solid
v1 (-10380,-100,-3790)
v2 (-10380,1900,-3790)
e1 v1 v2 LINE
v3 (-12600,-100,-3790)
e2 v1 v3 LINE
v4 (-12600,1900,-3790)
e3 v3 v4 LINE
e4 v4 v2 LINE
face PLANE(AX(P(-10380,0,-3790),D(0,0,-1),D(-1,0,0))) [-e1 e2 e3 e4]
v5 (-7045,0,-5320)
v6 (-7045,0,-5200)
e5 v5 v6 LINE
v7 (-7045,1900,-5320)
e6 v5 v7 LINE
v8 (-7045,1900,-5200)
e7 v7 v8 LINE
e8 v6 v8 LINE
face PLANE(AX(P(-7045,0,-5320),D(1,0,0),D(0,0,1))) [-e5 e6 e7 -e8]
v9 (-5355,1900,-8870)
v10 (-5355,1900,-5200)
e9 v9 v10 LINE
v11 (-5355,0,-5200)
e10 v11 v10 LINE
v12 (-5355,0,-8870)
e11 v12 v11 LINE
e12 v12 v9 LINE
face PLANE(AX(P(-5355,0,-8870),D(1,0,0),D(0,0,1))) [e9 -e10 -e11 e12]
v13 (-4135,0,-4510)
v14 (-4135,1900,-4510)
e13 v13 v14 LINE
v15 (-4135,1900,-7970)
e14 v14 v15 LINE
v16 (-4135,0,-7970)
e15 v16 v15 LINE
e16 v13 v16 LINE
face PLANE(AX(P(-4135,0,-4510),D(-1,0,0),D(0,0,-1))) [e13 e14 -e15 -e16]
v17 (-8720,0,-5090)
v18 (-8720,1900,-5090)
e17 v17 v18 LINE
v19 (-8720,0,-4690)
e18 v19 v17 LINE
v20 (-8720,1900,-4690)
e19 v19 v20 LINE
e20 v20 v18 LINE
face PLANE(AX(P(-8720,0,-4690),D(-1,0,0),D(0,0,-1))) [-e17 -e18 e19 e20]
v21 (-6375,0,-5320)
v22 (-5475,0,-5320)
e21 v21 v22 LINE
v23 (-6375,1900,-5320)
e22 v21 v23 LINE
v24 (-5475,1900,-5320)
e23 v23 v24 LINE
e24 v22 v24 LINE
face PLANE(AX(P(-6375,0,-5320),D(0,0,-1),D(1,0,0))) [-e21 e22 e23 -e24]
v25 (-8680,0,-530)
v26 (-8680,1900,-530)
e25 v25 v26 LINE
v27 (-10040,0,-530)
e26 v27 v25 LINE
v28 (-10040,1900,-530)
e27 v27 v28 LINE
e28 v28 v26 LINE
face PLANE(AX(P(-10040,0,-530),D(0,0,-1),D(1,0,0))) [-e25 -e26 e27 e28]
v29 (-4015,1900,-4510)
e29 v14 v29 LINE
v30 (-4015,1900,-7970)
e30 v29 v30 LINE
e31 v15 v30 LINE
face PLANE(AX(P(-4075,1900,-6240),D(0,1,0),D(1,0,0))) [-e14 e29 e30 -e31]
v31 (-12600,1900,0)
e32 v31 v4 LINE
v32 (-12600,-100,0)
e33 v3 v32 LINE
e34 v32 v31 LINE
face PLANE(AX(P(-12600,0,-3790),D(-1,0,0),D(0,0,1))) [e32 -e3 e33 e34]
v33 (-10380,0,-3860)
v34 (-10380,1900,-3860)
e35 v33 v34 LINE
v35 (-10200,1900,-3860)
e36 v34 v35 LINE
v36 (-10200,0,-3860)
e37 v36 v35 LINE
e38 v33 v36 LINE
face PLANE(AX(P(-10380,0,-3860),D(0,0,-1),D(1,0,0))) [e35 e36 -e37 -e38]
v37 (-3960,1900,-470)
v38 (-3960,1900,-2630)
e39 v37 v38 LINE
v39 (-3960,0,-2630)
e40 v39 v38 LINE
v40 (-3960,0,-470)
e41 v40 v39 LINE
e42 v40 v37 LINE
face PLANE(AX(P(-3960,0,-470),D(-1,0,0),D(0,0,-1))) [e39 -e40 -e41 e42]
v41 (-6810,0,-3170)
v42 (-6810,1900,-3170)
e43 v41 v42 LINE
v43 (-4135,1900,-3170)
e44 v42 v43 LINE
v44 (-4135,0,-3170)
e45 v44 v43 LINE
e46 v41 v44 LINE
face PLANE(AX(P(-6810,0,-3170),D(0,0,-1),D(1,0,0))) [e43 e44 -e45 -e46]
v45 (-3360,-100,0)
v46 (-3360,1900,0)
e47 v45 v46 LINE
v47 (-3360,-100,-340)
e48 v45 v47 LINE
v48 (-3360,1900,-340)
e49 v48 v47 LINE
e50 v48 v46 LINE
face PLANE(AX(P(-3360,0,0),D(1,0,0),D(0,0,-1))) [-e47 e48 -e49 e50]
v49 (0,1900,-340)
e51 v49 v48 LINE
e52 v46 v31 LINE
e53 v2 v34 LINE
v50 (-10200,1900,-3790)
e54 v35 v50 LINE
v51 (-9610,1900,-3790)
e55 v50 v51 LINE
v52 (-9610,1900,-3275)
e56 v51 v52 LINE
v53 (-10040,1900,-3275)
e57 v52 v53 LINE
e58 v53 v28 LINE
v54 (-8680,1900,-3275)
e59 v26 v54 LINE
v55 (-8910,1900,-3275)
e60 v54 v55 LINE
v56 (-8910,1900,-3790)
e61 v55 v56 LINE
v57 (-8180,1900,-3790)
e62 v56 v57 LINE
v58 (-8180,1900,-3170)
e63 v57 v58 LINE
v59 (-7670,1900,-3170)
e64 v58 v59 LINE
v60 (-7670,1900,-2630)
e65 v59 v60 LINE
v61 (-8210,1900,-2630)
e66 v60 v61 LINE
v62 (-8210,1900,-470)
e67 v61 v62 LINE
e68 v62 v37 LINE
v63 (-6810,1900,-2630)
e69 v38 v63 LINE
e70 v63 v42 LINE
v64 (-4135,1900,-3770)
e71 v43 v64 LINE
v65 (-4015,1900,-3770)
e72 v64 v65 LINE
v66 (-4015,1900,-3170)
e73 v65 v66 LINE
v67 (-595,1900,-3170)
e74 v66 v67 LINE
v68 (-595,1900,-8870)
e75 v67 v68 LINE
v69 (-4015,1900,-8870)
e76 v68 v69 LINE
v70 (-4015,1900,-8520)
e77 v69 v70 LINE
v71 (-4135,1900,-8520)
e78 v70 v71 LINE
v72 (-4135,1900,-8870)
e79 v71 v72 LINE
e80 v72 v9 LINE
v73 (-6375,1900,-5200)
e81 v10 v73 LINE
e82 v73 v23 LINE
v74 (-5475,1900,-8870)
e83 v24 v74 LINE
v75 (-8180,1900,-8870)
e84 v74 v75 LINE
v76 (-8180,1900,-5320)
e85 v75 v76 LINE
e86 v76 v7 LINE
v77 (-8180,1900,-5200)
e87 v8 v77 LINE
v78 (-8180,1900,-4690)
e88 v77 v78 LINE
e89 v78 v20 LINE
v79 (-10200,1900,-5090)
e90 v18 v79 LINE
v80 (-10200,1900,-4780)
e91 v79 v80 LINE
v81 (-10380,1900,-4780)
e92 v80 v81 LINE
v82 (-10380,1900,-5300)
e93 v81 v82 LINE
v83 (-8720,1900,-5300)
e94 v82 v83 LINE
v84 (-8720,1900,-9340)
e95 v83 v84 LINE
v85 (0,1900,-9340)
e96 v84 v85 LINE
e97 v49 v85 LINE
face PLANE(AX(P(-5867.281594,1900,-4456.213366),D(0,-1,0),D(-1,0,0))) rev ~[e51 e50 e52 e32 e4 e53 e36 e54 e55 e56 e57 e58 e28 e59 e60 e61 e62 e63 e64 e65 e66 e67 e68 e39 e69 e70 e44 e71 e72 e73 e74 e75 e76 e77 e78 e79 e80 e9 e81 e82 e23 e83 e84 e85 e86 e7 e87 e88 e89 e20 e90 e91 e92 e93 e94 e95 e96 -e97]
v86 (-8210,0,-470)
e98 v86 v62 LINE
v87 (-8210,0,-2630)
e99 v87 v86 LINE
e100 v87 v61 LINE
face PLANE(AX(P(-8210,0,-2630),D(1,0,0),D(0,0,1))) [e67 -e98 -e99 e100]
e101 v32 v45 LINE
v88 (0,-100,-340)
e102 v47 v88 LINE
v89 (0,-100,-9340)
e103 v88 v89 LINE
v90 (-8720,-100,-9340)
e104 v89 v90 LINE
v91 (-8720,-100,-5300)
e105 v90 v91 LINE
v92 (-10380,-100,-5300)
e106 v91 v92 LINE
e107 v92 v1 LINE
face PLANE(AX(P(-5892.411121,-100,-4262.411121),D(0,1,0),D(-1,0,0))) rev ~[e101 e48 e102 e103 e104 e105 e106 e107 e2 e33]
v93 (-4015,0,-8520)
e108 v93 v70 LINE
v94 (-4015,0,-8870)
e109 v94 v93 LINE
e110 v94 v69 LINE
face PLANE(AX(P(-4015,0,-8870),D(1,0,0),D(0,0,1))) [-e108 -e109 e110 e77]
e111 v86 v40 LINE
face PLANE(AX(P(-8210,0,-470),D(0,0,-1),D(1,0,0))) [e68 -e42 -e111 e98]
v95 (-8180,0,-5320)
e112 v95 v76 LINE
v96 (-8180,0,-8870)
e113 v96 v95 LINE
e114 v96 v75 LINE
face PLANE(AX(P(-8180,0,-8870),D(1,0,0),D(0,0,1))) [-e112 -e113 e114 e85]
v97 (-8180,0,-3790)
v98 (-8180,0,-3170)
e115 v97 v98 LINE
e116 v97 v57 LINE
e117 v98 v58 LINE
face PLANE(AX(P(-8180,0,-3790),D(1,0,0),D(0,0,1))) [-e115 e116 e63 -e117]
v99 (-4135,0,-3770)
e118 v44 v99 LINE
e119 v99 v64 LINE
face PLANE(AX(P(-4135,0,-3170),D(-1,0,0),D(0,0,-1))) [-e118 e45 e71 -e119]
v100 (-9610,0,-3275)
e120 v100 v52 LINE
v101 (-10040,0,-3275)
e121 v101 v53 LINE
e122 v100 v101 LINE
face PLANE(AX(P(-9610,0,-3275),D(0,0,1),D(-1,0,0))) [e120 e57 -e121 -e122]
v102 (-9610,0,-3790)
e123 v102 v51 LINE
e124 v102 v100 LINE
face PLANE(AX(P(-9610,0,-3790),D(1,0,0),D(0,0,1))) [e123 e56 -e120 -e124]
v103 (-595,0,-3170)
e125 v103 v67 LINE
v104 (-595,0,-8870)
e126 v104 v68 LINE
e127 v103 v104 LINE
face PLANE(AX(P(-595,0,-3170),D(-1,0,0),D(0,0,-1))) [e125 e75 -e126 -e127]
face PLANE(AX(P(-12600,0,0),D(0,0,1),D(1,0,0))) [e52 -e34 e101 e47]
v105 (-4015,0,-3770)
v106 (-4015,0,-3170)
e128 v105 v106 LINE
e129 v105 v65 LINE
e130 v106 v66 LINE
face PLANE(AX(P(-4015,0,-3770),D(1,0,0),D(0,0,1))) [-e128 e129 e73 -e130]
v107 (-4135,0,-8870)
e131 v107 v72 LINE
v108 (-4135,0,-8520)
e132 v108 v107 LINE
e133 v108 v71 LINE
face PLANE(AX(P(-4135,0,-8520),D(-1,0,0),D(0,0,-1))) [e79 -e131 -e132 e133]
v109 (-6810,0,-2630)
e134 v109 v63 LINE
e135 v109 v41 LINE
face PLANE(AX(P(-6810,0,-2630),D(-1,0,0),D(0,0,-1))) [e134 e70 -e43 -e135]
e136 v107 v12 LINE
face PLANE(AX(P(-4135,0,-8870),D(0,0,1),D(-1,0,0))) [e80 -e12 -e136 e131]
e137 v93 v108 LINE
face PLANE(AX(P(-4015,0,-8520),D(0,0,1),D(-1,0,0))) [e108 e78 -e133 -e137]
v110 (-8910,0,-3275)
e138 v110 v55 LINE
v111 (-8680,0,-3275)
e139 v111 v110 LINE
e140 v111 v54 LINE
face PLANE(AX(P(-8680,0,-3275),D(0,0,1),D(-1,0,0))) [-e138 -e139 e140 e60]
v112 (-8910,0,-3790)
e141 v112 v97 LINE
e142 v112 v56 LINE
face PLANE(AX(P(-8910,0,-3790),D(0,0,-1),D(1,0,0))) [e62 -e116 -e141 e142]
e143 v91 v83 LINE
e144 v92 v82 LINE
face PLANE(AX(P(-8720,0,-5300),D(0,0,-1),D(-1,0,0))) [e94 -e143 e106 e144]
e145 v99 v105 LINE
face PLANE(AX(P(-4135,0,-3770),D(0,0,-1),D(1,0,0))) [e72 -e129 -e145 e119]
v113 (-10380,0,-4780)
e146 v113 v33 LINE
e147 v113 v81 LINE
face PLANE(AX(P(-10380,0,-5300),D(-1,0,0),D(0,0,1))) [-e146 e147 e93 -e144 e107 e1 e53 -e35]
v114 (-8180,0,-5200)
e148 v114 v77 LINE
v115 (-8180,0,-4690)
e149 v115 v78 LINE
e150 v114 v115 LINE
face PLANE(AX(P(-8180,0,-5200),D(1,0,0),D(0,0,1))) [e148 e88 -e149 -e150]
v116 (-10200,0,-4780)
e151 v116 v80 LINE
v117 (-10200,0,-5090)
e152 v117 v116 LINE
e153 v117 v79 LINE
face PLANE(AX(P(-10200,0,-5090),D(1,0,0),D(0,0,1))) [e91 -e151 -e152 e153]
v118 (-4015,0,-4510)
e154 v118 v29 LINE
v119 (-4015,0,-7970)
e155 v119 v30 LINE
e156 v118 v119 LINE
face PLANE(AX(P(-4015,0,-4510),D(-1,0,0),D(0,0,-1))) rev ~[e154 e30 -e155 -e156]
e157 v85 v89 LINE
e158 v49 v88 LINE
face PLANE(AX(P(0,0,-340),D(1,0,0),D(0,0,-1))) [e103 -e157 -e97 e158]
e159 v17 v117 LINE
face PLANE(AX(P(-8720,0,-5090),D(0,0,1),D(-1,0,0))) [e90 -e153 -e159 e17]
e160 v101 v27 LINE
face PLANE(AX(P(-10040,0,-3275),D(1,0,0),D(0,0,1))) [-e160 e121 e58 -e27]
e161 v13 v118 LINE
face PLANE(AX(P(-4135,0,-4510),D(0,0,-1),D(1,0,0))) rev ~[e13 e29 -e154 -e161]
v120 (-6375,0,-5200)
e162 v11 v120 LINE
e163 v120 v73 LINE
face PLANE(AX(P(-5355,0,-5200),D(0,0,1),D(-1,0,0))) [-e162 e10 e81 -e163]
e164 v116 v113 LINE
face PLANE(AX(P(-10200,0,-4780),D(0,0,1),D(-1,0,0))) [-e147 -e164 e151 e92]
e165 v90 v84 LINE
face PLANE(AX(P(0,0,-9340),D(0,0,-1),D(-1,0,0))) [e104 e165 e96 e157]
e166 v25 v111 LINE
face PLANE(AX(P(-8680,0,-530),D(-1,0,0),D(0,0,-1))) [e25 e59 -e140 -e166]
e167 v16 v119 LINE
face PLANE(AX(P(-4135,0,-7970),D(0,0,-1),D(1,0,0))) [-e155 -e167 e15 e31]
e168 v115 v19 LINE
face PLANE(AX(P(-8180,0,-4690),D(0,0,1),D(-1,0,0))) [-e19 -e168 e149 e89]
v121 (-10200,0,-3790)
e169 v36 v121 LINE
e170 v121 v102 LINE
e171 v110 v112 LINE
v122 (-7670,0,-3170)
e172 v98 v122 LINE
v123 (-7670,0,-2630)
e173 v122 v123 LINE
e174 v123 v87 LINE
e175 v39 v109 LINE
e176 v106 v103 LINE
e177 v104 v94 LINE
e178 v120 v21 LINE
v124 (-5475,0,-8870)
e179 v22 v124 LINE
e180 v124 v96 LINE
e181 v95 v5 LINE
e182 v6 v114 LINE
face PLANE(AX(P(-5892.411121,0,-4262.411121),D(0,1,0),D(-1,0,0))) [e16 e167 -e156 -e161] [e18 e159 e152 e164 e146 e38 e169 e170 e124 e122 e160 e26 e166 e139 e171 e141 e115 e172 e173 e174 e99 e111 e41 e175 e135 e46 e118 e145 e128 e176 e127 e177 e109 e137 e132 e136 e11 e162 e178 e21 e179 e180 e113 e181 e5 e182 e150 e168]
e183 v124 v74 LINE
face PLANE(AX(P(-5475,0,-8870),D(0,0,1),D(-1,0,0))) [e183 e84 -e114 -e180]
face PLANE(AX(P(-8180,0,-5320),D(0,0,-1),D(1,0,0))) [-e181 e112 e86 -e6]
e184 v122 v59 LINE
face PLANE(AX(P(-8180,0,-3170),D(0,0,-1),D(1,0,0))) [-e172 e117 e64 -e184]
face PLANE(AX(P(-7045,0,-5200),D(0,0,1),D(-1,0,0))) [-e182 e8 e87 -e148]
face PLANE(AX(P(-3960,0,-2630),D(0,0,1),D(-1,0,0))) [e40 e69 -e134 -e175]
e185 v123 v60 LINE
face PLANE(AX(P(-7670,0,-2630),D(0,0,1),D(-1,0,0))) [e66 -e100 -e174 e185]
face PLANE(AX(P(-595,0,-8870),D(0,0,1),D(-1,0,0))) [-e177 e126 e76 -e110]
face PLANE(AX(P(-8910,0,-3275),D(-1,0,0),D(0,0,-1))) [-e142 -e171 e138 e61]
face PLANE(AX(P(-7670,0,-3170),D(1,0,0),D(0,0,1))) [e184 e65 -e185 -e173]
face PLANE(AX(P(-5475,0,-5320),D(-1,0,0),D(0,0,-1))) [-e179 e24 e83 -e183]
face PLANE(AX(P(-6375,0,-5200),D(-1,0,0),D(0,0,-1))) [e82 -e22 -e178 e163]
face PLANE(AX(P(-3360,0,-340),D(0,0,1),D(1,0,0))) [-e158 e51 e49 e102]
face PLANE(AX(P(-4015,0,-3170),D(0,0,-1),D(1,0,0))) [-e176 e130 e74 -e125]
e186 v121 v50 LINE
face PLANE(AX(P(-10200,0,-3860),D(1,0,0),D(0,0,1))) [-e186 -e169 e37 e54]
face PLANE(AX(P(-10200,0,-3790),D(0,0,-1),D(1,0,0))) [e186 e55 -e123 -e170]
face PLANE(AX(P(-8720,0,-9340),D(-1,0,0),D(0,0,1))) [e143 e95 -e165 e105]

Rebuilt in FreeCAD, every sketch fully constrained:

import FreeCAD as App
import Part
import Sketcher
from FreeCAD import Vector


def add_polygon(sketch, points):
    """Adds a closed chain of lines whose ends are joined by coincident constraints."""
    first, n = sketch.GeometryCount, len(points)
    for a, b in zip(points, points[1:] + points[:1]):
        sketch.addGeometry(Part.LineSegment(App.Vector(*a, 0), App.Vector(*b, 0)), False)
    for i in range(n):
        sketch.addConstraint(Sketcher.Constraint("Coincident", first + i, 2, first + (i + 1) % n, 1))

doc = App.newDocument("Part")
body = doc.addObject("PartDesign::Body", "Body")

sketch1 = body.newObject("Sketcher::SketchObject", "Sketch")
sketch1.AttachmentSupport = (doc.getObject("XZ_Plane"), [""])
sketch1.MapMode = "FlatFace"
add_polygon(sketch1, [(-12600, -3790), (-12600, 0), (-3360, 0), (-3360, -340), (0, -340), (0, -9340), (-8720, -9340), (-8720, -5300), (-10380, -5300), (-10380, -4780), (-10200, -4780), (-10200, -5090), (-8720, -5090), (-8720, -4690), (-8180, -4690), (-8180, -5200), (-7045, -5200), (-7045, -5320), (-8180, -5320), (-8180, -8870), (-5475, -8870), (-5475, -5320), (-6375, -5320), (-6375, -5200), (-5355, -5200), (-5355, -8870), (-4135, -8870), (-4135, -8520), (-4015, -8520), (-4015, -8870), (-595, -8870), (-595, -3170), (-4015, -3170), (-4015, -3770), (-4135, -3770), (-4135, -3170), (-6810, -3170), (-6810, -2630), (-3960, -2630), (-3960, -470), (-8210, -470), (-8210, -2630), (-7670, -2630), (-7670, -3170), (-8180, -3170), (-8180, -3790), (-8910, -3790), (-8910, -3275), (-8680, -3275), (-8680, -530), (-10040, -530), (-10040, -3275), (-9610, -3275), (-9610, -3790), (-10200, -3790), (-10200, -3860), (-10380, -3860), (-10380, -3790)])
sketch1.addConstraint(Sketcher.Constraint("Vertical", 0))
sketch1.addConstraint(Sketcher.Constraint("Horizontal", 1))
sketch1.addConstraint(Sketcher.Constraint("Vertical", 2))
sketch1.addConstraint(Sketcher.Constraint("Horizontal", 3))
sketch1.addConstraint(Sketcher.Constraint("Vertical", 4))
sketch1.addConstraint(Sketcher.Constraint("Horizontal", 5))
sketch1.addConstraint(Sketcher.Constraint("Vertical", 6))
sketch1.addConstraint(Sketcher.Constraint("Horizontal", 7))
sketch1.addConstraint(Sketcher.Constraint("Vertical", 8))
sketch1.addConstraint(Sketcher.Constraint("Horizontal", 9))
sketch1.addConstraint(Sketcher.Constraint("Vertical", 10))
sketch1.addConstraint(Sketcher.Constraint("Horizontal", 11))
sketch1.addConstraint(Sketcher.Constraint("Vertical", 12))
sketch1.addConstraint(Sketcher.Constraint("Horizontal", 13))
sketch1.addConstraint(Sketcher.Constraint("Vertical", 14))
sketch1.addConstraint(Sketcher.Constraint("Horizontal", 15))
sketch1.addConstraint(Sketcher.Constraint("Vertical", 16))
sketch1.addConstraint(Sketcher.Constraint("Horizontal", 17))
sketch1.addConstraint(Sketcher.Constraint("Vertical", 18))
sketch1.addConstraint(Sketcher.Constraint("Horizontal", 19))
sketch1.addConstraint(Sketcher.Constraint("Vertical", 20))
sketch1.addConstraint(Sketcher.Constraint("Horizontal", 21))
sketch1.addConstraint(Sketcher.Constraint("Vertical", 22))
sketch1.addConstraint(Sketcher.Constraint("Horizontal", 23))
sketch1.addConstraint(Sketcher.Constraint("Vertical", 24))
sketch1.addConstraint(Sketcher.Constraint("Horizontal", 25))
sketch1.addConstraint(Sketcher.Constraint("Vertical", 26))
sketch1.addConstraint(Sketcher.Constraint("Horizontal", 27))
sketch1.addConstraint(Sketcher.Constraint("Vertical", 28))
sketch1.addConstraint(Sketcher.Constraint("Horizontal", 29))
sketch1.addConstraint(Sketcher.Constraint("Vertical", 30))
sketch1.addConstraint(Sketcher.Constraint("Horizontal", 31))
sketch1.addConstraint(Sketcher.Constraint("Vertical", 32))
sketch1.addConstraint(Sketcher.Constraint("Horizontal", 33))
sketch1.addConstraint(Sketcher.Constraint("Vertical", 34))
sketch1.addConstraint(Sketcher.Constraint("Horizontal", 35))
sketch1.addConstraint(Sketcher.Constraint("Vertical", 36))
sketch1.addConstraint(Sketcher.Constraint("Horizontal", 37))
sketch1.addConstraint(Sketcher.Constraint("Vertical", 38))
sketch1.addConstraint(Sketcher.Constraint("Horizontal", 39))
sketch1.addConstraint(Sketcher.Constraint("Vertical", 40))
sketch1.addConstraint(Sketcher.Constraint("Horizontal", 41))
sketch1.addConstraint(Sketcher.Constraint("Vertical", 42))
sketch1.addConstraint(Sketcher.Constraint("Horizontal", 43))
sketch1.addConstraint(Sketcher.Constraint("Vertical", 44))
sketch1.addConstraint(Sketcher.Constraint("Horizontal", 45))
sketch1.addConstraint(Sketcher.Constraint("Vertical", 46))
sketch1.addConstraint(Sketcher.Constraint("Horizontal", 47))
sketch1.addConstraint(Sketcher.Constraint("Vertical", 48))
sketch1.addConstraint(Sketcher.Constraint("Horizontal", 49))
sketch1.addConstraint(Sketcher.Constraint("Vertical", 50))
sketch1.addConstraint(Sketcher.Constraint("Horizontal", 51))
sketch1.addConstraint(Sketcher.Constraint("Vertical", 52))
sketch1.addConstraint(Sketcher.Constraint("Horizontal", 53))
sketch1.addConstraint(Sketcher.Constraint("Vertical", 54))
sketch1.addConstraint(Sketcher.Constraint("Horizontal", 55))
sketch1.addConstraint(Sketcher.Constraint("Vertical", 56))
sketch1.addConstraint(Sketcher.Constraint("Horizontal", 57))
sketch1.addConstraint(Sketcher.Constraint("PointOnObject", 0, 2, -1))
sketch1.addConstraint(Sketcher.Constraint("PointOnObject", 3, 2, -2))
sketch1.addConstraint(Sketcher.Constraint("Horizontal", 17, 2, 20, 2))
sketch1.addConstraint(Sketcher.Constraint("Horizontal", 15, 2, 22, 2))
sketch1.addConstraint(Sketcher.Constraint("Horizontal", 19, 2, 24, 2))
sketch1.addConstraint(Sketcher.Constraint("Horizontal", 25, 2, 28, 2))
sketch1.addConstraint(Sketcher.Constraint("Horizontal", 31, 2, 34, 2))
sketch1.addConstraint(Sketcher.Constraint("Horizontal", 37, 2, 40, 2))
sketch1.addConstraint(Sketcher.Constraint("Horizontal", 35, 2, 42, 2))
sketch1.addConstraint(Sketcher.Constraint("Horizontal", 47, 2, 50, 2))
sketch1.addConstraint(Sketcher.Constraint("Horizontal", 45, 2, 52, 2))
sketch1.addConstraint(Sketcher.Constraint("Horizontal", 53, 2, 56, 2))
sketch1.addConstraint(Sketcher.Constraint("Vertical", 6, 2, 11, 2))
sketch1.addConstraint(Sketcher.Constraint("Vertical", 14, 2, 17, 2))
sketch1.addConstraint(Sketcher.Constraint("Vertical", 28, 2, 31, 2))
sketch1.addConstraint(Sketcher.Constraint("Vertical", 26, 2, 33, 2))
sketch1.addConstraint(Sketcher.Constraint("Vertical", 18, 2, 43, 2))
sketch1.addConstraint(Sketcher.Constraint("Vertical", 10, 2, 53, 2))
sketch1.addConstraint(Sketcher.Constraint("Vertical", 8, 2, 55, 2))
sketch1.addConstraint(Sketcher.Constraint("Equal", 13, 41))
sketch1.addConstraint(Sketcher.Constraint("Equal", 43, 14))
sketch1.addConstraint(Sketcher.Constraint("Equal", 33, 16))
sketch1.addConstraint(Sketcher.Constraint("Equal", 41, 36))
sketch1.addConstraint(Sketcher.Constraint("DistanceX", 1, 1, 1, 2, 9240.0))
sketch1.addConstraint(Sketcher.Constraint("DistanceX", 3, 1, 3, 2, 3360.0))
sketch1.addConstraint(Sketcher.Constraint("DistanceX", 5, 2, 5, 1, 8720.0))
sketch1.addConstraint(Sketcher.Constraint("DistanceX", 7, 2, 7, 1, 1660.0))
sketch1.addConstraint(Sketcher.Constraint("DistanceX", 9, 1, 9, 2, 180.0))
sketch1.addConstraint(Sketcher.Constraint("DistanceX", 13, 1, 13, 2, 540.0))
sketch1.addConstraint(Sketcher.Constraint("DistanceX", 15, 1, 15, 2, 1135.0))
sketch1.addConstraint(Sketcher.Constraint("DistanceX", 19, 1, 19, 2, 2705.0))
sketch1.addConstraint(Sketcher.Constraint("DistanceX", 21, 2, 21, 1, 900.0))
sketch1.addConstraint(Sketcher.Constraint("DistanceX", 23, 1, 23, 2, 1020.0))
sketch1.addConstraint(Sketcher.Constraint("DistanceX", 25, 1, 25, 2, 1220.0))
sketch1.addConstraint(Sketcher.Constraint("DistanceX", 27, 1, 27, 2, 120.0))
sketch1.addConstraint(Sketcher.Constraint("DistanceX", 29, 1, 29, 2, 3420.0))
sketch1.addConstraint(Sketcher.Constraint("DistanceX", 35, 2, 35, 1, 2675.0))
sketch1.addConstraint(Sketcher.Constraint("DistanceX", 37, 1, 37, 2, 2850.0))
sketch1.addConstraint(Sketcher.Constraint("DistanceX", 39, 2, 39, 1, 4250.0))
sketch1.addConstraint(Sketcher.Constraint("DistanceX", 45, 2, 45, 1, 730.0))
sketch1.addConstraint(Sketcher.Constraint("DistanceX", 47, 1, 47, 2, 230.0))
sketch1.addConstraint(Sketcher.Constraint("DistanceX", 49, 2, 49, 1, 1360.0))
sketch1.addConstraint(Sketcher.Constraint("DistanceX", 51, 1, 51, 2, 430.0))
sketch1.addConstraint(Sketcher.Constraint("DistanceY", 0, 1, 0, 2, 3790.0))
sketch1.addConstraint(Sketcher.Constraint("DistanceY", 2, 2, 2, 1, 340.0))
sketch1.addConstraint(Sketcher.Constraint("DistanceY", 4, 2, 4, 1, 9000.0))
sketch1.addConstraint(Sketcher.Constraint("DistanceY", 6, 1, 6, 2, 4040.0))
sketch1.addConstraint(Sketcher.Constraint("DistanceY", 8, 1, 8, 2, 520.0))
sketch1.addConstraint(Sketcher.Constraint("DistanceY", 10, 2, 10, 1, 310.0))
sketch1.addConstraint(Sketcher.Constraint("DistanceY", 12, 1, 12, 2, 400.0))
sketch1.addConstraint(Sketcher.Constraint("DistanceY", 18, 2, 18, 1, 3550.0))
sketch1.addConstraint(Sketcher.Constraint("DistanceY", 26, 1, 26, 2, 350.0))
sketch1.addConstraint(Sketcher.Constraint("DistanceY", 30, 1, 30, 2, 5700.0))
sketch1.addConstraint(Sketcher.Constraint("DistanceY", 32, 2, 32, 1, 600.0))
sketch1.addConstraint(Sketcher.Constraint("DistanceY", 38, 1, 38, 2, 2160.0))
sketch1.addConstraint(Sketcher.Constraint("DistanceY", 46, 1, 46, 2, 515.0))
sketch1.addConstraint(Sketcher.Constraint("DistanceY", 48, 1, 48, 2, 2745.0))
sketch1.addConstraint(Sketcher.Constraint("DistanceY", 54, 2, 54, 1, 70.0))
pad1 = body.newObject("PartDesign::Pad", "Pad")
pad1.Profile = sketch1
pad1.Length = 1900
pad1.Reversed = True
body2 = doc.addObject("PartDesign::Body", "Body001")

sketch2 = body2.newObject("Sketcher::SketchObject", "Sketch001")
sketch2.AttachmentSupport = (doc.getObject("XZ_Plane001"), [""])
sketch2.MapMode = "FlatFace"
add_polygon(sketch2, [(-4135, -7970), (-4135, -4510), (-4015, -4510), (-4015, -7970)])
sketch2.addConstraint(Sketcher.Constraint("Vertical", 0))
sketch2.addConstraint(Sketcher.Constraint("Horizontal", 1))
sketch2.addConstraint(Sketcher.Constraint("Vertical", 2))
sketch2.addConstraint(Sketcher.Constraint("Horizontal", 3))
sketch2.addConstraint(Sketcher.Constraint("DistanceX", 1, 1, 1, 2, 120.0))
sketch2.addConstraint(Sketcher.Constraint("DistanceY", 0, 1, 0, 2, 3460.0))
sketch2.addConstraint(Sketcher.Constraint("DistanceX", 0, 2, -1, 1, 4135.0))
sketch2.addConstraint(Sketcher.Constraint("DistanceY", 0, 2, -1, 1, 4510.0))
pad2 = body2.newObject("PartDesign::Pad", "Pad001")
pad2.Profile = sketch2
pad2.Length = 1900
pad2.Reversed = True
body.AllowCompound = True
doc.recompute()

boolean = body.newObject("PartDesign::Boolean", "Boolean")
boolean.Type = "Fuse"
boolean.addObjects([body2])

sketch3 = body.newObject("Sketcher::SketchObject", "Sketch002")
sketch3.AttachmentSupport = (doc.getObject("XZ_Plane"), [""])
sketch3.MapMode = "FlatFace"
add_polygon(sketch3, [(-8720, -9340), (0, -9340), (0, -340), (-3360, -340), (-3360, 0), (-12600, 0), (-12600, -3790), (-10380, -3790), (-10380, -5300), (-8720, -5300)])
sketch3.addConstraint(Sketcher.Constraint("Horizontal", 0))
sketch3.addConstraint(Sketcher.Constraint("Vertical", 1))
sketch3.addConstraint(Sketcher.Constraint("Horizontal", 2))
sketch3.addConstraint(Sketcher.Constraint("Vertical", 3))
sketch3.addConstraint(Sketcher.Constraint("Horizontal", 4))
sketch3.addConstraint(Sketcher.Constraint("Vertical", 5))
sketch3.addConstraint(Sketcher.Constraint("Horizontal", 6))
sketch3.addConstraint(Sketcher.Constraint("Vertical", 7))
sketch3.addConstraint(Sketcher.Constraint("Horizontal", 8))
sketch3.addConstraint(Sketcher.Constraint("Vertical", 9))
sketch3.addConstraint(Sketcher.Constraint("PointOnObject", 0, 2, -2))
sketch3.addConstraint(Sketcher.Constraint("PointOnObject", 3, 2, -1))
sketch3.addConstraint(Sketcher.Constraint("DistanceX", 0, 1, 0, 2, 8720.0))
sketch3.addConstraint(Sketcher.Constraint("DistanceX", 2, 2, 2, 1, 3360.0))
sketch3.addConstraint(Sketcher.Constraint("DistanceX", 4, 2, 4, 1, 9240.0))
sketch3.addConstraint(Sketcher.Constraint("DistanceX", 6, 1, 6, 2, 2220.0))
sketch3.addConstraint(Sketcher.Constraint("DistanceY", 1, 1, 1, 2, 9000.0))
sketch3.addConstraint(Sketcher.Constraint("DistanceY", 3, 1, 3, 2, 340.0))
sketch3.addConstraint(Sketcher.Constraint("DistanceY", 5, 2, 5, 1, 3790.0))
sketch3.addConstraint(Sketcher.Constraint("DistanceY", 7, 2, 7, 1, 1510.0))
pad3 = body.newObject("PartDesign::Pad", "Pad002")
pad3.Profile = sketch3
pad3.Length = 100

doc.recompute()
